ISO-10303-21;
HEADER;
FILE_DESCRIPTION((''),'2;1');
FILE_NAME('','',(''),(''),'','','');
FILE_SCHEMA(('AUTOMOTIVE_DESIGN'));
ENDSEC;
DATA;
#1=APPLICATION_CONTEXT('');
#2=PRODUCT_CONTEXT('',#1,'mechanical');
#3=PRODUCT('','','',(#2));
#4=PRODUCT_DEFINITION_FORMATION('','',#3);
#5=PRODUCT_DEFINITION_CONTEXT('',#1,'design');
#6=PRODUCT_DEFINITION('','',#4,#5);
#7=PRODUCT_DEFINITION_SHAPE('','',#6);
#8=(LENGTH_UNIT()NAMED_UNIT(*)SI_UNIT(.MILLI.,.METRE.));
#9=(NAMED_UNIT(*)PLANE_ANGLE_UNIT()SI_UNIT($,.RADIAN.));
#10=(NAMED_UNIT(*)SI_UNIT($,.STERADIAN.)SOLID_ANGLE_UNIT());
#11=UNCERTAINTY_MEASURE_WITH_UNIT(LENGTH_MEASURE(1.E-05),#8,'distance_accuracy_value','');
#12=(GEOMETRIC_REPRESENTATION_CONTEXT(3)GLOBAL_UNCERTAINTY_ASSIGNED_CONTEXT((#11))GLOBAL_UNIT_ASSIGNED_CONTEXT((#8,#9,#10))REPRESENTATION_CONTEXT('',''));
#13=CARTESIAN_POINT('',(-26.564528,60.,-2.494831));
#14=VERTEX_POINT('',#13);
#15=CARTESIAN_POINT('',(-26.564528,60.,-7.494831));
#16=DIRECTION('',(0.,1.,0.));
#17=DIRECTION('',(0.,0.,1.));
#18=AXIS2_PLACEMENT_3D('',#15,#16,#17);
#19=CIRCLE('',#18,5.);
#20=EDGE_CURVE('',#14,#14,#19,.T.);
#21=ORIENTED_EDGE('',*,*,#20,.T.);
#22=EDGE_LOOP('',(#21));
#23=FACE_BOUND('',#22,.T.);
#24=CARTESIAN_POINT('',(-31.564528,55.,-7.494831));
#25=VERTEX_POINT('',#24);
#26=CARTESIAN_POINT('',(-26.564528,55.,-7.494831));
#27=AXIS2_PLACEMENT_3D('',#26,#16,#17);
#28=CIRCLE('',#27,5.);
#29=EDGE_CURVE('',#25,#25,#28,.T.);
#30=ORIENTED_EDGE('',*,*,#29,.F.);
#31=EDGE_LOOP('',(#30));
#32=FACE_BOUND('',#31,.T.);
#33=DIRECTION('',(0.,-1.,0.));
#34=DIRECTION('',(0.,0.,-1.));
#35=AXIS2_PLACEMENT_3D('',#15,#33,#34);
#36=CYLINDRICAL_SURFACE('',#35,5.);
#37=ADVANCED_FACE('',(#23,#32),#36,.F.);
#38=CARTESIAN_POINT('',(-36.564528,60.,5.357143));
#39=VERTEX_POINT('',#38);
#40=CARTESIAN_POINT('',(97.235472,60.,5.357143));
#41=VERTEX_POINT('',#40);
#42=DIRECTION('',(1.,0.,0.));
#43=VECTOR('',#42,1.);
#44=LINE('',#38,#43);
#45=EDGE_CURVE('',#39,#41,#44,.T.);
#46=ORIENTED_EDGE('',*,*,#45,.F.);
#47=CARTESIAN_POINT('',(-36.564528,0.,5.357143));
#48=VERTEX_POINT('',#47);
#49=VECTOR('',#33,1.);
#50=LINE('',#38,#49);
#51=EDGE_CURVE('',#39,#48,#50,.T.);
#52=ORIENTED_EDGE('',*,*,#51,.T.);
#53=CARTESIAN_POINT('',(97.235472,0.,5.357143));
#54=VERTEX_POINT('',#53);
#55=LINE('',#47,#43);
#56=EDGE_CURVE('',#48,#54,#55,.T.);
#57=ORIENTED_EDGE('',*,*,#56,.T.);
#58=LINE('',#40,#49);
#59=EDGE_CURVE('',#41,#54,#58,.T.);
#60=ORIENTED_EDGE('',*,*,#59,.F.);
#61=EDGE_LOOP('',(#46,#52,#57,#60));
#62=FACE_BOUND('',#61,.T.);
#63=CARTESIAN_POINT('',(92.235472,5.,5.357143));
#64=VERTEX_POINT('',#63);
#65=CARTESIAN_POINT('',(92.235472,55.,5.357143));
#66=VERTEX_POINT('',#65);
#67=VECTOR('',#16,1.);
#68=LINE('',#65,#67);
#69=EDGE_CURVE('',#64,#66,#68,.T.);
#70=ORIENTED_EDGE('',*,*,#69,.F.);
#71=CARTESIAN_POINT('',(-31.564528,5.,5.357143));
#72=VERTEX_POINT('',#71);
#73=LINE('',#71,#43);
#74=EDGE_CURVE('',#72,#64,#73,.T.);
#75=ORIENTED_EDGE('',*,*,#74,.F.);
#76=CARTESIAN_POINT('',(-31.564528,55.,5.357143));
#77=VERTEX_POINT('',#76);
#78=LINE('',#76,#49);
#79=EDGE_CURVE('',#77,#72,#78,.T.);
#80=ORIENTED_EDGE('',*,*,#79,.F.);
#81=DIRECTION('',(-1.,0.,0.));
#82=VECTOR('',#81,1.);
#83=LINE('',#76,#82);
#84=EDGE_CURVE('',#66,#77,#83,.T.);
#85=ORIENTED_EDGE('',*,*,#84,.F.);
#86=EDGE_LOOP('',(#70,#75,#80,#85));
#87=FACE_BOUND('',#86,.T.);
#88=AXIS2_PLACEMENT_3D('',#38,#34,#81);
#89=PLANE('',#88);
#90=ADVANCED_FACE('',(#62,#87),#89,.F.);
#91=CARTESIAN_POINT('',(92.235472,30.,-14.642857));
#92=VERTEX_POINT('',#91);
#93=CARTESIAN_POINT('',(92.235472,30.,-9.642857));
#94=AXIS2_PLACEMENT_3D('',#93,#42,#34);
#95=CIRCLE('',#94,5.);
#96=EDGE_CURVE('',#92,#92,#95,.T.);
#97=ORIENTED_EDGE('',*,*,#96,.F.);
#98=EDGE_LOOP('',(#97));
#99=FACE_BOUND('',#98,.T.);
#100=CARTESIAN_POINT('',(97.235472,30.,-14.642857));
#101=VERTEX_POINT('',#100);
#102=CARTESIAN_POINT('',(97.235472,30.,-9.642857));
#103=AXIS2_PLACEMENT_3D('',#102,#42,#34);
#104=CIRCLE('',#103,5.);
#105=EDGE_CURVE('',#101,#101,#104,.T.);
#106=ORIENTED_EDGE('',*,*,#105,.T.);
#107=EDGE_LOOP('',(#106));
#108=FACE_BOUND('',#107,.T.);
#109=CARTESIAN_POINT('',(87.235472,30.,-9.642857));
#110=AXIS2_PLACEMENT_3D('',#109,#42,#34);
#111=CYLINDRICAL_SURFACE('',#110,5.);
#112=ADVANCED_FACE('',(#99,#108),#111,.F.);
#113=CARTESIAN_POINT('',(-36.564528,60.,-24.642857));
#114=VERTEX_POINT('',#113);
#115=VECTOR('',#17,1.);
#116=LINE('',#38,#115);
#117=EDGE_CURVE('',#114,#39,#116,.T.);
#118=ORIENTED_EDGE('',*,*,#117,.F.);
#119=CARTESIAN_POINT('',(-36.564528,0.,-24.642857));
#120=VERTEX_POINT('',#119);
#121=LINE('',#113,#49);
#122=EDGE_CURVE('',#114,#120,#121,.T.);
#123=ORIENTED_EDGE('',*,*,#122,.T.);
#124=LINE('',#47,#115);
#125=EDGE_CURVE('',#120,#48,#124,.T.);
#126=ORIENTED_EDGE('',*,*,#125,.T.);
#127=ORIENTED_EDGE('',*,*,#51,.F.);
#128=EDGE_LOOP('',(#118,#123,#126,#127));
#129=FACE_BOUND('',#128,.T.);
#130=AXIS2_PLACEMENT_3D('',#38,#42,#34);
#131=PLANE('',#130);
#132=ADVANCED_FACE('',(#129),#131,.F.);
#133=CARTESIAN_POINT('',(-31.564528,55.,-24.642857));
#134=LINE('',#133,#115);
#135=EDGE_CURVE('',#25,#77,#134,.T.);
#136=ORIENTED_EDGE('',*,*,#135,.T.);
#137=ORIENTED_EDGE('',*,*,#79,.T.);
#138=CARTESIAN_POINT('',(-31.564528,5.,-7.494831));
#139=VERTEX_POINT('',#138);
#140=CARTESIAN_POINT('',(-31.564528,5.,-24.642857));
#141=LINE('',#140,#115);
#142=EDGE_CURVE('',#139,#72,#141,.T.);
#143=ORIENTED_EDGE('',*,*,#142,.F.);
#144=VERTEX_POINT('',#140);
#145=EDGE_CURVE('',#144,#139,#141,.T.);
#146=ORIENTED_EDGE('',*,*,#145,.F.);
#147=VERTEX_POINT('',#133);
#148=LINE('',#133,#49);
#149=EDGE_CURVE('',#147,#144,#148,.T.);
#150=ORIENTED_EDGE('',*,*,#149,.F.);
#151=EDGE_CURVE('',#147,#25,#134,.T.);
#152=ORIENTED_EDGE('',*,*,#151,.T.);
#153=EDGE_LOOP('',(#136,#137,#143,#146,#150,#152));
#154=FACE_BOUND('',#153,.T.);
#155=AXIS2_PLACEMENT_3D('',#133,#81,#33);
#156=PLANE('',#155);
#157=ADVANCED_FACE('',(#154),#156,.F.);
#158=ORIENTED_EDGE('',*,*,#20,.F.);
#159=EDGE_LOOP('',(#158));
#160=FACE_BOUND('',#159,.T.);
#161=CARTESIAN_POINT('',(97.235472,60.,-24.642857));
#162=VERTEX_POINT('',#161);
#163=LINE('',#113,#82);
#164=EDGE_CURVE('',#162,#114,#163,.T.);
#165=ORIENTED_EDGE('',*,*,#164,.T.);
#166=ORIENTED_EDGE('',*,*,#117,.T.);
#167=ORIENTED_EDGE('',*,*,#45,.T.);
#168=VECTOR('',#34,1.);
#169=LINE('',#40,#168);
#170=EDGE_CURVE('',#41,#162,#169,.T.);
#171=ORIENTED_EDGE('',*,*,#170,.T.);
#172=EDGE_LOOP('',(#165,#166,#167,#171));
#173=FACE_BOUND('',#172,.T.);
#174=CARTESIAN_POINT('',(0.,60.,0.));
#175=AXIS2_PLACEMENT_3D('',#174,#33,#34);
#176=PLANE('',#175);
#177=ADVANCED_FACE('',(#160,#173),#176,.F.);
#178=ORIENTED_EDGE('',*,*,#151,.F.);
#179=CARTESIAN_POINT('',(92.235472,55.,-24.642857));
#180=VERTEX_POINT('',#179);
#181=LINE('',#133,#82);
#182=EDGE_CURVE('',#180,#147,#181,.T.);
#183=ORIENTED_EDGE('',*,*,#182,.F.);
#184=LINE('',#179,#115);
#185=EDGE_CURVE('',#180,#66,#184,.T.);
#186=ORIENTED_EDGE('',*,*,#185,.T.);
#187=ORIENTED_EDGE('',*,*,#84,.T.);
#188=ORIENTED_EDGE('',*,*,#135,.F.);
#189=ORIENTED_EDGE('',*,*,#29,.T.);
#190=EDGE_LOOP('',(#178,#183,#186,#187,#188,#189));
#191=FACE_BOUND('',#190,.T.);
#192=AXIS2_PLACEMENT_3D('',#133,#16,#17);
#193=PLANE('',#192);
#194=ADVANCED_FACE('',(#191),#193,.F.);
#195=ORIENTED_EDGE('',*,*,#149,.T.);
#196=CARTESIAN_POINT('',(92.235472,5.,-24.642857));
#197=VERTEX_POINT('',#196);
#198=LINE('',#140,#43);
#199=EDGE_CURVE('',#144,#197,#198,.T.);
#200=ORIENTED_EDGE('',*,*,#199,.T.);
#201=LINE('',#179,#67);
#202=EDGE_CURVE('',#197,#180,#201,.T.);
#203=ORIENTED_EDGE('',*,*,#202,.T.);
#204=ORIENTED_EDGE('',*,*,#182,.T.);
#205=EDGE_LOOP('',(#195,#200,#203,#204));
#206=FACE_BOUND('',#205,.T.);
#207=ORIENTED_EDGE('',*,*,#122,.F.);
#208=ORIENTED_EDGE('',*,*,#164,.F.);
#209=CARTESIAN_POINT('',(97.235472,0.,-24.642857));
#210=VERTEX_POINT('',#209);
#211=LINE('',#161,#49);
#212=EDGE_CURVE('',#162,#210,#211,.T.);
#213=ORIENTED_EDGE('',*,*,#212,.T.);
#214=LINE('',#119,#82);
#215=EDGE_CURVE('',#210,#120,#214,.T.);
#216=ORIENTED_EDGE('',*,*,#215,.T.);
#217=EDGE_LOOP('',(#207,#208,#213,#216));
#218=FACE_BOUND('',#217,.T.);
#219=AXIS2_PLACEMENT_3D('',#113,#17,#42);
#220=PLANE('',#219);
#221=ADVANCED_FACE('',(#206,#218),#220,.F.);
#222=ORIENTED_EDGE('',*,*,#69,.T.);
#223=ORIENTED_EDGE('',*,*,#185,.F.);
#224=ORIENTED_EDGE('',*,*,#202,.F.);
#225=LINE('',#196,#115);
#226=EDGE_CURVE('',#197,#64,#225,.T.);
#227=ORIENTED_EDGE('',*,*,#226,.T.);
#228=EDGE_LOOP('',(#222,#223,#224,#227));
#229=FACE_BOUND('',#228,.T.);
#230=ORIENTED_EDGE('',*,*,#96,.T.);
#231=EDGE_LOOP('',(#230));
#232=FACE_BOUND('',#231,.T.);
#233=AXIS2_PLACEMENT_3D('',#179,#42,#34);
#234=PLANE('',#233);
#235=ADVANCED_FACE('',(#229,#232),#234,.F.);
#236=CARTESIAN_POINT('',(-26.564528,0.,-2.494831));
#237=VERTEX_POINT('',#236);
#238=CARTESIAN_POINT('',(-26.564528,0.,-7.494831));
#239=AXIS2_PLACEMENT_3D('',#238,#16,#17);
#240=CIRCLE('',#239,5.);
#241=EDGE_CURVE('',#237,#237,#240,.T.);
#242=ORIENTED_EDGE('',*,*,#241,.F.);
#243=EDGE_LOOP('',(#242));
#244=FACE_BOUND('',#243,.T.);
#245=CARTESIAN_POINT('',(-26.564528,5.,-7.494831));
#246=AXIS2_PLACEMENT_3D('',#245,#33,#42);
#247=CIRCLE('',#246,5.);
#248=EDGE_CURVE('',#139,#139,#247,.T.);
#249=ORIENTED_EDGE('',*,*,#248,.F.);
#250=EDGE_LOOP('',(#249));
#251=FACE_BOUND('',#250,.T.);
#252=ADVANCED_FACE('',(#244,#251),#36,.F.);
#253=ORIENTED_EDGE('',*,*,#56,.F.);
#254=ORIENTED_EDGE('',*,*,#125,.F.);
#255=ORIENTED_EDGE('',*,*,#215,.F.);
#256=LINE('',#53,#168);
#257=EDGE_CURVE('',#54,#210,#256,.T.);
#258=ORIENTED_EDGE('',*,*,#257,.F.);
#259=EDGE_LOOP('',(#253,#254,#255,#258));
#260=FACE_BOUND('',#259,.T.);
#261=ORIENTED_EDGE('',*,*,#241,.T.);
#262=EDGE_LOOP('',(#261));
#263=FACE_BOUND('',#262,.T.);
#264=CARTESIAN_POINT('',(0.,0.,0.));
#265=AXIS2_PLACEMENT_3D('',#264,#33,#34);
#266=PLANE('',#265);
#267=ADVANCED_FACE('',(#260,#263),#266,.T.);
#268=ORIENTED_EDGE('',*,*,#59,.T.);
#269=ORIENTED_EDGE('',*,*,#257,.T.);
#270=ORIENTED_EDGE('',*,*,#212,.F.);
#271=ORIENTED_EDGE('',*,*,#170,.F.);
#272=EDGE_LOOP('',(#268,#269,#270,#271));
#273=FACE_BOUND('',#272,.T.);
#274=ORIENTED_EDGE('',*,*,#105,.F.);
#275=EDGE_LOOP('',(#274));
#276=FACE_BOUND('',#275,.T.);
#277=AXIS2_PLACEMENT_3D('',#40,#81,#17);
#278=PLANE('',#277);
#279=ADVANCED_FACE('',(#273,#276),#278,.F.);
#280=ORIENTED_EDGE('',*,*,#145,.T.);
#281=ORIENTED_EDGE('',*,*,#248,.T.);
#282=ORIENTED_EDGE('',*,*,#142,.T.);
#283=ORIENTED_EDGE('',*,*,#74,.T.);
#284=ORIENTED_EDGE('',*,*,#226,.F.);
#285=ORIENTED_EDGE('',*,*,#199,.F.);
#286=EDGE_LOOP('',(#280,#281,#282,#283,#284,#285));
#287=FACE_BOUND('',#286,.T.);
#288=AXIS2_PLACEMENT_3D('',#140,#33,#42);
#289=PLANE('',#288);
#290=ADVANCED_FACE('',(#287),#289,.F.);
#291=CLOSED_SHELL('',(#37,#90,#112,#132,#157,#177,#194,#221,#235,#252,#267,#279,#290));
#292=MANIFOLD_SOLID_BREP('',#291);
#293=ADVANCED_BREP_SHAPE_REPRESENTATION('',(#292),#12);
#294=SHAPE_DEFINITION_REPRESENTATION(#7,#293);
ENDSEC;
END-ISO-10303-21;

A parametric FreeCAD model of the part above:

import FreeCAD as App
import Part
import Sketcher

V = App.Vector


def add_polygon(sketch, points):
    """Adds a closed chain of lines whose ends are joined by coincident constraints."""
    first, n = sketch.GeometryCount, len(points)
    for a, b in zip(points, points[1:] + points[:1]):
        sketch.addGeometry(Part.LineSegment(App.Vector(*a, 0), App.Vector(*b, 0)), False)
    for i in range(n):
        sketch.addConstraint(Sketcher.Constraint("Coincident", first + i, 2, first + (i + 1) % n, 1))

doc = App.newDocument("Part")
body = doc.addObject("PartDesign::Body", "Body")

sketch1 = doc.addObject("Sketcher::SketchObject", "Sketch")
body.addObject(sketch1)
sketch1.AttachmentSupport = (doc.XZ_Plane, [""])
sketch1.MapMode = "FlatFace"
add_polygon(sketch1, [(-37, -25), (-37, 5), (97, 5), (97, -25)])
sketch1.addGeometry(Part.Circle(V(-27, -7, 0), V(0, 0, 1), 5), False)
sketch1.addConstraint([
    Sketcher.Constraint("Vertical", 0),
    Sketcher.Constraint("Horizontal", 1),
    Sketcher.Constraint("Vertical", 2),
    Sketcher.Constraint("Horizontal", 3),
    Sketcher.Constraint("Diameter", 4, 10.0),
    Sketcher.Constraint("DistanceY", 0, 1, 0, 2, 30.0),
    Sketcher.Constraint("DistanceX", 1, 1, 1, 2, 133.8),
    Sketcher.Constraint("DistanceX", 0, 2, 4, 3, 10.0),
    Sketcher.Constraint("DistanceY", 4, 3, -1, 1, 7.494831),
    Sketcher.Constraint("DistanceX", 4, 3, -1, 1, 26.564528),
    Sketcher.Constraint("DistanceY", -1, 1, 0, 2, 5.357143),
])
pad1 = doc.addObject("PartDesign::Pad", "Pad")
body.addObject(pad1)
pad1.Profile = sketch1
pad1.Length = 60
pad1.Reversed = True

sketch2 = doc.addObject("Sketcher::SketchObject", "Sketch001")
body.addObject(sketch2)
sketch2.AttachmentSupport = (doc.XY_Plane, [""])
sketch2.MapMode = "FlatFace"
sketch2.AttachmentOffset = App.Placement(V(0, 0, 5.357143), App.Rotation())
add_polygon(sketch2, [(-32, 55), (-32, 5), (92, 5), (92, 55)])
sketch2.addConstraint([
    Sketcher.Constraint("Vertical", 0),
    Sketcher.Constraint("Horizontal", 1),
    Sketcher.Constraint("Vertical", 2),
    Sketcher.Constraint("Horizontal", 3),
    Sketcher.Constraint("DistanceY", 0, 2, 0, 1, 50.0),
    Sketcher.Constraint("DistanceX", 1, 1, 1, 2, 123.8),
    Sketcher.Constraint("DistanceY", -1, 1, 0, 2, 5.0),
    Sketcher.Constraint("DistanceX", 0, 2, -1, 1, 31.564528),
])
pocket1 = doc.addObject("PartDesign::Pocket", "Pocket")
body.addObject(pocket1)
pocket1.Profile = sketch2
pocket1.Type = "ThroughAll"

sketch3 = doc.addObject("Sketcher::SketchObject", "Sketch002")
body.addObject(sketch3)
sketch3.AttachmentSupport = (doc.YZ_Plane, [""])
sketch3.MapMode = "FlatFace"
sketch3.AttachmentOffset = App.Placement(V(0, 0, 97.235472), App.Rotation())
sketch3.addGeometry(Part.Circle(V(30, -10, 0), V(0, 0, 1), 5), False)
sketch3.addConstraint([
    Sketcher.Constraint("Diameter", 0, 10.0),
    Sketcher.Constraint("DistanceX", -1, 1, 0, 3, 30.0),
    Sketcher.Constraint("DistanceY", 0, 3, -1, 1, 9.642857),
])
pocket2 = doc.addObject("PartDesign::Pocket", "Pocket001")
body.addObject(pocket2)
pocket2.Profile = sketch3
pocket2.Length = 10

doc.recompute()
